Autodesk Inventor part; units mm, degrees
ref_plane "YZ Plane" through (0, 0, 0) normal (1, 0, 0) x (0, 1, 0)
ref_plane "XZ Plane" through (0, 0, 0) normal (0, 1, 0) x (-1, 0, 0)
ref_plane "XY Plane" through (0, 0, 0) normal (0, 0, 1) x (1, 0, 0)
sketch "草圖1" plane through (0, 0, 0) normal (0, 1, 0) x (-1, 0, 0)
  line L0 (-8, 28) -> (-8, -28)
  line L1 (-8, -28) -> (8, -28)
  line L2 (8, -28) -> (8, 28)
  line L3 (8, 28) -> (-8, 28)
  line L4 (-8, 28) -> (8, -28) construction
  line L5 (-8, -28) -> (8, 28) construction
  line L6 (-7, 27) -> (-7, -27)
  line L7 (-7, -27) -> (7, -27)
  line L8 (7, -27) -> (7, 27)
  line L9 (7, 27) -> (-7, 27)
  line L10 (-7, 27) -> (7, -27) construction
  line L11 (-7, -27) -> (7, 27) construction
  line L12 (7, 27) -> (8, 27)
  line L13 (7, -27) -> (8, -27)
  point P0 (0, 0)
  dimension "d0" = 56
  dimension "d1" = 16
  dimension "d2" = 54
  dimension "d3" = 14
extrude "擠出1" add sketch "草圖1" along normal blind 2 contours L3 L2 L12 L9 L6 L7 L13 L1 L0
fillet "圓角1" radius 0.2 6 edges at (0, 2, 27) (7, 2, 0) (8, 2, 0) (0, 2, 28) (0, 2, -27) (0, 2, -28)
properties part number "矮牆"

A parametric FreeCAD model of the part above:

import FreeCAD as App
import Part
import Sketcher

V = App.Vector
Q = App.Units.Quantity


def edges_at(feature, points):
    """Names of the edges that pass closest to the given points."""
    edges = feature.Shape.Edges
    near = lambda p: min(range(len(edges)), key=lambda i: edges[i].distToShape(Part.Vertex(*p))[0])
    return sorted({f"Edge{near(p) + 1}" for p in points})

doc = App.newDocument("Part")
body = doc.addObject("PartDesign::Body", "Body")

sketch1 = body.newObject("Sketcher::SketchObject", "Sketch")
sketch1.AttachmentSupport = (doc.getObject("XZ_Plane"), [""])
sketch1.MapMode = "FlatFace"
sketch1.addGeometry([
    Part.LineSegment(V(-8, 28, 0), V(8, 28, 0)),
    Part.LineSegment(V(8, 28, 0), V(8, -28, 0)),
    Part.LineSegment(V(8, -28, 0), V(-8, -28, 0)),
    Part.LineSegment(V(-8, -28, 0), V(-8, -27, 0)),
    Part.LineSegment(V(-8, -27, 0), V(7, -27, 0)),
    Part.LineSegment(V(7, -27, 0), V(7, 27, 0)),
    Part.LineSegment(V(7, 27, 0), V(-8, 27, 0)),
    Part.LineSegment(V(-8, 27, 0), V(-8, 28, 0)),
], False)
sketch1.addConstraint([
    Sketcher.Constraint("Coincident", 0, 2, 1, 1),
    Sketcher.Constraint("Coincident", 1, 2, 2, 1),
    Sketcher.Constraint("Coincident", 2, 2, 3, 1),
    Sketcher.Constraint("Coincident", 3, 2, 4, 1),
    Sketcher.Constraint("Coincident", 4, 2, 5, 1),
    Sketcher.Constraint("Coincident", 5, 2, 6, 1),
    Sketcher.Constraint("Coincident", 6, 2, 7, 1),
    Sketcher.Constraint("Coincident", 7, 2, 0, 1),
    Sketcher.Constraint("Horizontal", 0),
    Sketcher.Constraint("Vertical", 1),
    Sketcher.Constraint("Horizontal", 2),
    Sketcher.Constraint("Vertical", 3),
    Sketcher.Constraint("Horizontal", 4),
    Sketcher.Constraint("Vertical", 5),
    Sketcher.Constraint("Horizontal", 6),
    Sketcher.Constraint("Vertical", 7),
    Sketcher.Constraint("Symmetric", 0, 2, 2, 2, -1, 1),
    Sketcher.Constraint("Symmetric", 3, 2, 6, 2, -1),
    Sketcher.Constraint("DistanceX", 0, 1, 0, 2, Q("16 mm")),
    Sketcher.Constraint("DistanceY", 1, 2, 1, 1, Q("56 mm")),
    Sketcher.Constraint("DistanceY", 5, 1, 5, 2, Q("54 mm")),
    Sketcher.Constraint("DistanceX", 4, 1, 4, 2, Q("15 mm")),
])
pad1 = body.newObject("PartDesign::Pad", "Pad")
pad1.Profile = sketch1
pad1.Length = 2
pad1.Reversed = True
doc.recompute()

fillet = body.newObject("PartDesign::Fillet", "Fillet")
fillet.Base = (pad1, edges_at(pad1, [
    (0, 2, 27),
    (7, 2, 0),
    (8, 2, 0),
    (0, 2, 28),
    (0, 2, -27),
    (0, 2, -28),
]))
fillet.Radius = 0.2

doc.recompute()
